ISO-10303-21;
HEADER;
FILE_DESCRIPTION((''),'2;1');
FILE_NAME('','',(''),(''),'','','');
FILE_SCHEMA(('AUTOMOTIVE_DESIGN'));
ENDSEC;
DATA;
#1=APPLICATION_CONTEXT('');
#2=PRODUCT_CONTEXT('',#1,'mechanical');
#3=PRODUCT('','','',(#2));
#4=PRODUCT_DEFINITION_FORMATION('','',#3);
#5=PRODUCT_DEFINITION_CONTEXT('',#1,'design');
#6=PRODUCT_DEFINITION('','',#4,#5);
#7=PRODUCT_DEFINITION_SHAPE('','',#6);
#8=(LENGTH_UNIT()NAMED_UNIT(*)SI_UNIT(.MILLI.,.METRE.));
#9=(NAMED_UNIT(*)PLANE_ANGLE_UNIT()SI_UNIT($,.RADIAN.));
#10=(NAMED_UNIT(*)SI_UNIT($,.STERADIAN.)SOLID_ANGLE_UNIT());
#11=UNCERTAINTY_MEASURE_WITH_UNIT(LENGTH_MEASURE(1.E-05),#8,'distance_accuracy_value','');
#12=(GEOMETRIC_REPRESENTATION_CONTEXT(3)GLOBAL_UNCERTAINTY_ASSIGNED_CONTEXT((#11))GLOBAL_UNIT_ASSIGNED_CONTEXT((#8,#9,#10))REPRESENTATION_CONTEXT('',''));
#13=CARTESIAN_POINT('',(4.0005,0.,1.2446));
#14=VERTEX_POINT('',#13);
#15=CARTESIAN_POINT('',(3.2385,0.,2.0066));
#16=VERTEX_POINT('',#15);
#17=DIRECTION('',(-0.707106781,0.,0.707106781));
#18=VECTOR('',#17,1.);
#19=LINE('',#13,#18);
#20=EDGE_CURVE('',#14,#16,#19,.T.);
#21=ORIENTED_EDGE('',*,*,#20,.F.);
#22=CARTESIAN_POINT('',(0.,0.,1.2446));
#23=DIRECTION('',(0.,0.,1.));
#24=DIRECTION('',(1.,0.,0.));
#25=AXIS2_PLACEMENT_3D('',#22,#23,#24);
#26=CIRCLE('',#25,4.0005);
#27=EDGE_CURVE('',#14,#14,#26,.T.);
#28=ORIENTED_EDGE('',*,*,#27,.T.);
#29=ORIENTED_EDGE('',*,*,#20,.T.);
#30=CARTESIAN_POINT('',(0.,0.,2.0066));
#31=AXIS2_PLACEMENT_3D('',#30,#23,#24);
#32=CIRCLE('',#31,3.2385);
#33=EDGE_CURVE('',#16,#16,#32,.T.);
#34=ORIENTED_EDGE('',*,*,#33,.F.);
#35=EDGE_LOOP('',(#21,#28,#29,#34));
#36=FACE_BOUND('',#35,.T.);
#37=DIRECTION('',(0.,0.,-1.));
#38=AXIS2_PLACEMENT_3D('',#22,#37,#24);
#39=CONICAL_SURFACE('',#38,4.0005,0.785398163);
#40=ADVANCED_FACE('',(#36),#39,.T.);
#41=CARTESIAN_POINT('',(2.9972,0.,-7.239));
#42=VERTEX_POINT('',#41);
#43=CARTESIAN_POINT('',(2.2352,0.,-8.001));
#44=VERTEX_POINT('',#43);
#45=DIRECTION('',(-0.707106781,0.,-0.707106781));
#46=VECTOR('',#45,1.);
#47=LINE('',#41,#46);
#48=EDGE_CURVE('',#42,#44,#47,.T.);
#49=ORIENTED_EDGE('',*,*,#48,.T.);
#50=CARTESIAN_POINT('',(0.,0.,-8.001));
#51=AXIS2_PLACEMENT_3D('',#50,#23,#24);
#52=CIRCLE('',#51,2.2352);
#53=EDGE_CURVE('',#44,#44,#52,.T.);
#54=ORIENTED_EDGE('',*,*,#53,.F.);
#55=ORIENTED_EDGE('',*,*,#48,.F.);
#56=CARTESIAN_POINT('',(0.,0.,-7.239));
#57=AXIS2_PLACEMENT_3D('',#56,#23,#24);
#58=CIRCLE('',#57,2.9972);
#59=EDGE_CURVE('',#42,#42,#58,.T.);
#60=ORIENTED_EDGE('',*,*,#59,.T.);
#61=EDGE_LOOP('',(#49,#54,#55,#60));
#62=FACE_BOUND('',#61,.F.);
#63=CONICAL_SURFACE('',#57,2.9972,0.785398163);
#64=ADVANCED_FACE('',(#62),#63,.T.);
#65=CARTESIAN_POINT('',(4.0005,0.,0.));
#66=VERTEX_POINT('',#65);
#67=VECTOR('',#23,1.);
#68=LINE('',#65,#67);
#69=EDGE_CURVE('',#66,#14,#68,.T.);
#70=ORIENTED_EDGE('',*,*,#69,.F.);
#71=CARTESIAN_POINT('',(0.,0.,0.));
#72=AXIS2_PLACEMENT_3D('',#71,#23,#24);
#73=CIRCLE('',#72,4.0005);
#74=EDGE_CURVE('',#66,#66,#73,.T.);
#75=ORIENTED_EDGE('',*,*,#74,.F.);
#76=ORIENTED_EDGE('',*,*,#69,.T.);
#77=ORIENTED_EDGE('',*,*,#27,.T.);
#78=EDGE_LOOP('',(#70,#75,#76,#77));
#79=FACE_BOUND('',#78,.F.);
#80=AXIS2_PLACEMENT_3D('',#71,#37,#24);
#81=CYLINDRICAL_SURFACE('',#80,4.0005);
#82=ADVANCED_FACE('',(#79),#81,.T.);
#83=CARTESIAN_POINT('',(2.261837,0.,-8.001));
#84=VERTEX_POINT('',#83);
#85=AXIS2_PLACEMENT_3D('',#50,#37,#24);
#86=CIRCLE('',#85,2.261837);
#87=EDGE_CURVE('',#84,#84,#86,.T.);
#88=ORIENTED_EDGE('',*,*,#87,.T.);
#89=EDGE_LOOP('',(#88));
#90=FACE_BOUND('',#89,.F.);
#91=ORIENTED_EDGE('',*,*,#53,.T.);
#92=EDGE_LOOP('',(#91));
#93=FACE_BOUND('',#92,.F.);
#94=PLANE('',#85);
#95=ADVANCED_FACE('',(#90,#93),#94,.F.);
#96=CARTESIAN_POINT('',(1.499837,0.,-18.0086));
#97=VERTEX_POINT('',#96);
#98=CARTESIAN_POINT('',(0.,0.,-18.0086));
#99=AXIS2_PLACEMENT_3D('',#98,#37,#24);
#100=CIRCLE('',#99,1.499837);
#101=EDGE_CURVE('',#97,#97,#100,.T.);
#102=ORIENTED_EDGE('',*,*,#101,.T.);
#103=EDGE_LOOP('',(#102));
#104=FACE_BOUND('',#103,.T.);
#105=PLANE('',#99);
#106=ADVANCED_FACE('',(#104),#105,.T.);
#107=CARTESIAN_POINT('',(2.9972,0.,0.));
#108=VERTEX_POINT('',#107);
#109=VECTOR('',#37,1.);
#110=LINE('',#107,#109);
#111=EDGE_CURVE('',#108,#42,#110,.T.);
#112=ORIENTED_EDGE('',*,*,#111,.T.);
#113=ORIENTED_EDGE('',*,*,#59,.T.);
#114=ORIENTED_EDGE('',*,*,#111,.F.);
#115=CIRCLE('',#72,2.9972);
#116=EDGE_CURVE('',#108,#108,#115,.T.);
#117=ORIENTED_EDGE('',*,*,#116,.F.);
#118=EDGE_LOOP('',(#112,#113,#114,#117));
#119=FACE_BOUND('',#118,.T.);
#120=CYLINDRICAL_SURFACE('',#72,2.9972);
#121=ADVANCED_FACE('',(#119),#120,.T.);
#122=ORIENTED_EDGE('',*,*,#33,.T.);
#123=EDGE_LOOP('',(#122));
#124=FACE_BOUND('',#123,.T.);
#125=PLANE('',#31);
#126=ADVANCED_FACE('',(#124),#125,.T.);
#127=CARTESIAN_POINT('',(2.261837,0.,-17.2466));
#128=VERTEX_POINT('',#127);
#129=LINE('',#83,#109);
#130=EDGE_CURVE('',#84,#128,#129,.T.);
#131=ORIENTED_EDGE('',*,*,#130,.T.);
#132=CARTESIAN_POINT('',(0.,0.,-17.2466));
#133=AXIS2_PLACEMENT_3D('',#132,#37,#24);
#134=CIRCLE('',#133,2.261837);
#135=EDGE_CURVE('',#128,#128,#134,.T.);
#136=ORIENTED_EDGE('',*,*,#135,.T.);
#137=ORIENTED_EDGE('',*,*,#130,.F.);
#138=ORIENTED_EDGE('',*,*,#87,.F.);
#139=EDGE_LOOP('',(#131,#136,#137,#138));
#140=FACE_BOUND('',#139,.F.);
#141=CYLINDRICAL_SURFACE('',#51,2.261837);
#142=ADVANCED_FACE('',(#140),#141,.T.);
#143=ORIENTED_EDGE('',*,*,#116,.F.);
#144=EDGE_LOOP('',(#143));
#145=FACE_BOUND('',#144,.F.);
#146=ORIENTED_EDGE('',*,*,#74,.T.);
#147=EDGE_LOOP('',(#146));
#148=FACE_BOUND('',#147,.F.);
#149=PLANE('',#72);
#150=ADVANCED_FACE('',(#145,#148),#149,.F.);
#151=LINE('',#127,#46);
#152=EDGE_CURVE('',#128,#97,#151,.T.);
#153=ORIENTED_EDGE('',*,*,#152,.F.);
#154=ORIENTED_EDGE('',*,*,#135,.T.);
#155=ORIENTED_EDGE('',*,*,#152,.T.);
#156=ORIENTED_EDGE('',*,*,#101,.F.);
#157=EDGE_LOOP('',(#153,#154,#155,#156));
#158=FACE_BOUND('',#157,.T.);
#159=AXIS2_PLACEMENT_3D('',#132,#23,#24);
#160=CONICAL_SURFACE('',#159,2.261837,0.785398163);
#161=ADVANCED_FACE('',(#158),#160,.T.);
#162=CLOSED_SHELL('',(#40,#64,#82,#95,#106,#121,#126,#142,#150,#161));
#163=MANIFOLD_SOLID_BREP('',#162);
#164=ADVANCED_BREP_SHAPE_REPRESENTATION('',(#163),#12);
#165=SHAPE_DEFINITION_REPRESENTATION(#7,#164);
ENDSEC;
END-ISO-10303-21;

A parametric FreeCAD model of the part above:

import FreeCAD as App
import Part
import Sketcher
from FreeCAD import Vector
Q = App.Units.Quantity


def edges_at(feature, points):
    """Names of the edges that pass closest to the given points."""
    edges = feature.Shape.Edges
    near = lambda p: min(range(len(edges)), key=lambda i: edges[i].distToShape(Part.Vertex(*p))[0])
    return sorted({f"Edge{near(p) + 1}" for p in points})

doc = App.newDocument("Part")
body = doc.addObject("PartDesign::Body", "Body")

# Sketch on XY plane
sketch1 = body.newObject("Sketcher::SketchObject", "Sketch")
sketch1.AttachmentSupport = (doc.getObject("XY_Plane"), [""])
sketch1.MapMode = "FlatFace"
sketch1.addGeometry(Part.Circle(Vector(0, 0, 0), Vector(0, 0, 1), 4), False)
sketch1.addConstraint([
    Sketcher.Constraint("Coincident", 0, 3, -1, 1),
    Sketcher.Constraint("Diameter", 0, Q("0.315 in")),
])
pad1 = body.newObject("PartDesign::Pad", "Pad")
pad1.Profile = sketch1
pad1.Length = Q("0.079 in")
doc.recompute()

chamfer = body.newObject("PartDesign::Chamfer", "Chamfer")
chamfer.Base = (pad1, edges_at(pad1, [(-4, 0, 2.007)]))
chamfer.Size = Q("0.03 in")

# Sketch on XY plane
sketch2 = body.newObject("Sketcher::SketchObject", "Sketch001")
sketch2.AttachmentSupport = (doc.getObject("XY_Plane"), [""])
sketch2.MapMode = "FlatFace"
sketch2.addGeometry(Part.Circle(Vector(0, 0, 0), Vector(0, 0, 1), 3), False)
sketch2.addConstraint([
    Sketcher.Constraint("Coincident", 0, 3, -1, 1),
    Sketcher.Constraint("Diameter", 0, Q("0.236 in")),
])
pad2 = body.newObject("PartDesign::Pad", "Pad001")
pad2.Profile = sketch2
pad2.Length = Q("0.315 in")
pad2.Reversed = True
doc.recompute()

chamfer2 = body.newObject("PartDesign::Chamfer", "Chamfer001")
chamfer2.Base = (pad2, edges_at(pad2, [(-2.997, 0, -8.001)]))
chamfer2.Size = Q("0.03 in")

# Sketch on XY plane
sketch3 = body.newObject("Sketcher::SketchObject", "Sketch002")
sketch3.AttachmentSupport = (doc.getObject("XY_Plane"), [""])
sketch3.MapMode = "FlatFace"
sketch3.AttachmentOffset = App.Placement(Vector(0, 0, -0.315 * 25.4), App.Rotation())
sketch3.addGeometry(Part.Circle(Vector(0, 0, 0), Vector(0, 0, 1), 2.3), False)
sketch3.addConstraint([
    Sketcher.Constraint("Coincident", 0, 3, -1, 1),
    Sketcher.Constraint("Diameter", 0, Q("4.523674 mm")),
])
pad3 = body.newObject("PartDesign::Pad", "Pad002")
pad3.Profile = sketch3
pad3.Length = Q("0.394 in")
pad3.Reversed = True
doc.recompute()

chamfer3 = body.newObject("PartDesign::Chamfer", "Chamfer002")
chamfer3.Base = (pad3, edges_at(pad3, [(-2.262, 0, -18.009)]))
chamfer3.Size = Q("0.03 in")

doc.recompute()
